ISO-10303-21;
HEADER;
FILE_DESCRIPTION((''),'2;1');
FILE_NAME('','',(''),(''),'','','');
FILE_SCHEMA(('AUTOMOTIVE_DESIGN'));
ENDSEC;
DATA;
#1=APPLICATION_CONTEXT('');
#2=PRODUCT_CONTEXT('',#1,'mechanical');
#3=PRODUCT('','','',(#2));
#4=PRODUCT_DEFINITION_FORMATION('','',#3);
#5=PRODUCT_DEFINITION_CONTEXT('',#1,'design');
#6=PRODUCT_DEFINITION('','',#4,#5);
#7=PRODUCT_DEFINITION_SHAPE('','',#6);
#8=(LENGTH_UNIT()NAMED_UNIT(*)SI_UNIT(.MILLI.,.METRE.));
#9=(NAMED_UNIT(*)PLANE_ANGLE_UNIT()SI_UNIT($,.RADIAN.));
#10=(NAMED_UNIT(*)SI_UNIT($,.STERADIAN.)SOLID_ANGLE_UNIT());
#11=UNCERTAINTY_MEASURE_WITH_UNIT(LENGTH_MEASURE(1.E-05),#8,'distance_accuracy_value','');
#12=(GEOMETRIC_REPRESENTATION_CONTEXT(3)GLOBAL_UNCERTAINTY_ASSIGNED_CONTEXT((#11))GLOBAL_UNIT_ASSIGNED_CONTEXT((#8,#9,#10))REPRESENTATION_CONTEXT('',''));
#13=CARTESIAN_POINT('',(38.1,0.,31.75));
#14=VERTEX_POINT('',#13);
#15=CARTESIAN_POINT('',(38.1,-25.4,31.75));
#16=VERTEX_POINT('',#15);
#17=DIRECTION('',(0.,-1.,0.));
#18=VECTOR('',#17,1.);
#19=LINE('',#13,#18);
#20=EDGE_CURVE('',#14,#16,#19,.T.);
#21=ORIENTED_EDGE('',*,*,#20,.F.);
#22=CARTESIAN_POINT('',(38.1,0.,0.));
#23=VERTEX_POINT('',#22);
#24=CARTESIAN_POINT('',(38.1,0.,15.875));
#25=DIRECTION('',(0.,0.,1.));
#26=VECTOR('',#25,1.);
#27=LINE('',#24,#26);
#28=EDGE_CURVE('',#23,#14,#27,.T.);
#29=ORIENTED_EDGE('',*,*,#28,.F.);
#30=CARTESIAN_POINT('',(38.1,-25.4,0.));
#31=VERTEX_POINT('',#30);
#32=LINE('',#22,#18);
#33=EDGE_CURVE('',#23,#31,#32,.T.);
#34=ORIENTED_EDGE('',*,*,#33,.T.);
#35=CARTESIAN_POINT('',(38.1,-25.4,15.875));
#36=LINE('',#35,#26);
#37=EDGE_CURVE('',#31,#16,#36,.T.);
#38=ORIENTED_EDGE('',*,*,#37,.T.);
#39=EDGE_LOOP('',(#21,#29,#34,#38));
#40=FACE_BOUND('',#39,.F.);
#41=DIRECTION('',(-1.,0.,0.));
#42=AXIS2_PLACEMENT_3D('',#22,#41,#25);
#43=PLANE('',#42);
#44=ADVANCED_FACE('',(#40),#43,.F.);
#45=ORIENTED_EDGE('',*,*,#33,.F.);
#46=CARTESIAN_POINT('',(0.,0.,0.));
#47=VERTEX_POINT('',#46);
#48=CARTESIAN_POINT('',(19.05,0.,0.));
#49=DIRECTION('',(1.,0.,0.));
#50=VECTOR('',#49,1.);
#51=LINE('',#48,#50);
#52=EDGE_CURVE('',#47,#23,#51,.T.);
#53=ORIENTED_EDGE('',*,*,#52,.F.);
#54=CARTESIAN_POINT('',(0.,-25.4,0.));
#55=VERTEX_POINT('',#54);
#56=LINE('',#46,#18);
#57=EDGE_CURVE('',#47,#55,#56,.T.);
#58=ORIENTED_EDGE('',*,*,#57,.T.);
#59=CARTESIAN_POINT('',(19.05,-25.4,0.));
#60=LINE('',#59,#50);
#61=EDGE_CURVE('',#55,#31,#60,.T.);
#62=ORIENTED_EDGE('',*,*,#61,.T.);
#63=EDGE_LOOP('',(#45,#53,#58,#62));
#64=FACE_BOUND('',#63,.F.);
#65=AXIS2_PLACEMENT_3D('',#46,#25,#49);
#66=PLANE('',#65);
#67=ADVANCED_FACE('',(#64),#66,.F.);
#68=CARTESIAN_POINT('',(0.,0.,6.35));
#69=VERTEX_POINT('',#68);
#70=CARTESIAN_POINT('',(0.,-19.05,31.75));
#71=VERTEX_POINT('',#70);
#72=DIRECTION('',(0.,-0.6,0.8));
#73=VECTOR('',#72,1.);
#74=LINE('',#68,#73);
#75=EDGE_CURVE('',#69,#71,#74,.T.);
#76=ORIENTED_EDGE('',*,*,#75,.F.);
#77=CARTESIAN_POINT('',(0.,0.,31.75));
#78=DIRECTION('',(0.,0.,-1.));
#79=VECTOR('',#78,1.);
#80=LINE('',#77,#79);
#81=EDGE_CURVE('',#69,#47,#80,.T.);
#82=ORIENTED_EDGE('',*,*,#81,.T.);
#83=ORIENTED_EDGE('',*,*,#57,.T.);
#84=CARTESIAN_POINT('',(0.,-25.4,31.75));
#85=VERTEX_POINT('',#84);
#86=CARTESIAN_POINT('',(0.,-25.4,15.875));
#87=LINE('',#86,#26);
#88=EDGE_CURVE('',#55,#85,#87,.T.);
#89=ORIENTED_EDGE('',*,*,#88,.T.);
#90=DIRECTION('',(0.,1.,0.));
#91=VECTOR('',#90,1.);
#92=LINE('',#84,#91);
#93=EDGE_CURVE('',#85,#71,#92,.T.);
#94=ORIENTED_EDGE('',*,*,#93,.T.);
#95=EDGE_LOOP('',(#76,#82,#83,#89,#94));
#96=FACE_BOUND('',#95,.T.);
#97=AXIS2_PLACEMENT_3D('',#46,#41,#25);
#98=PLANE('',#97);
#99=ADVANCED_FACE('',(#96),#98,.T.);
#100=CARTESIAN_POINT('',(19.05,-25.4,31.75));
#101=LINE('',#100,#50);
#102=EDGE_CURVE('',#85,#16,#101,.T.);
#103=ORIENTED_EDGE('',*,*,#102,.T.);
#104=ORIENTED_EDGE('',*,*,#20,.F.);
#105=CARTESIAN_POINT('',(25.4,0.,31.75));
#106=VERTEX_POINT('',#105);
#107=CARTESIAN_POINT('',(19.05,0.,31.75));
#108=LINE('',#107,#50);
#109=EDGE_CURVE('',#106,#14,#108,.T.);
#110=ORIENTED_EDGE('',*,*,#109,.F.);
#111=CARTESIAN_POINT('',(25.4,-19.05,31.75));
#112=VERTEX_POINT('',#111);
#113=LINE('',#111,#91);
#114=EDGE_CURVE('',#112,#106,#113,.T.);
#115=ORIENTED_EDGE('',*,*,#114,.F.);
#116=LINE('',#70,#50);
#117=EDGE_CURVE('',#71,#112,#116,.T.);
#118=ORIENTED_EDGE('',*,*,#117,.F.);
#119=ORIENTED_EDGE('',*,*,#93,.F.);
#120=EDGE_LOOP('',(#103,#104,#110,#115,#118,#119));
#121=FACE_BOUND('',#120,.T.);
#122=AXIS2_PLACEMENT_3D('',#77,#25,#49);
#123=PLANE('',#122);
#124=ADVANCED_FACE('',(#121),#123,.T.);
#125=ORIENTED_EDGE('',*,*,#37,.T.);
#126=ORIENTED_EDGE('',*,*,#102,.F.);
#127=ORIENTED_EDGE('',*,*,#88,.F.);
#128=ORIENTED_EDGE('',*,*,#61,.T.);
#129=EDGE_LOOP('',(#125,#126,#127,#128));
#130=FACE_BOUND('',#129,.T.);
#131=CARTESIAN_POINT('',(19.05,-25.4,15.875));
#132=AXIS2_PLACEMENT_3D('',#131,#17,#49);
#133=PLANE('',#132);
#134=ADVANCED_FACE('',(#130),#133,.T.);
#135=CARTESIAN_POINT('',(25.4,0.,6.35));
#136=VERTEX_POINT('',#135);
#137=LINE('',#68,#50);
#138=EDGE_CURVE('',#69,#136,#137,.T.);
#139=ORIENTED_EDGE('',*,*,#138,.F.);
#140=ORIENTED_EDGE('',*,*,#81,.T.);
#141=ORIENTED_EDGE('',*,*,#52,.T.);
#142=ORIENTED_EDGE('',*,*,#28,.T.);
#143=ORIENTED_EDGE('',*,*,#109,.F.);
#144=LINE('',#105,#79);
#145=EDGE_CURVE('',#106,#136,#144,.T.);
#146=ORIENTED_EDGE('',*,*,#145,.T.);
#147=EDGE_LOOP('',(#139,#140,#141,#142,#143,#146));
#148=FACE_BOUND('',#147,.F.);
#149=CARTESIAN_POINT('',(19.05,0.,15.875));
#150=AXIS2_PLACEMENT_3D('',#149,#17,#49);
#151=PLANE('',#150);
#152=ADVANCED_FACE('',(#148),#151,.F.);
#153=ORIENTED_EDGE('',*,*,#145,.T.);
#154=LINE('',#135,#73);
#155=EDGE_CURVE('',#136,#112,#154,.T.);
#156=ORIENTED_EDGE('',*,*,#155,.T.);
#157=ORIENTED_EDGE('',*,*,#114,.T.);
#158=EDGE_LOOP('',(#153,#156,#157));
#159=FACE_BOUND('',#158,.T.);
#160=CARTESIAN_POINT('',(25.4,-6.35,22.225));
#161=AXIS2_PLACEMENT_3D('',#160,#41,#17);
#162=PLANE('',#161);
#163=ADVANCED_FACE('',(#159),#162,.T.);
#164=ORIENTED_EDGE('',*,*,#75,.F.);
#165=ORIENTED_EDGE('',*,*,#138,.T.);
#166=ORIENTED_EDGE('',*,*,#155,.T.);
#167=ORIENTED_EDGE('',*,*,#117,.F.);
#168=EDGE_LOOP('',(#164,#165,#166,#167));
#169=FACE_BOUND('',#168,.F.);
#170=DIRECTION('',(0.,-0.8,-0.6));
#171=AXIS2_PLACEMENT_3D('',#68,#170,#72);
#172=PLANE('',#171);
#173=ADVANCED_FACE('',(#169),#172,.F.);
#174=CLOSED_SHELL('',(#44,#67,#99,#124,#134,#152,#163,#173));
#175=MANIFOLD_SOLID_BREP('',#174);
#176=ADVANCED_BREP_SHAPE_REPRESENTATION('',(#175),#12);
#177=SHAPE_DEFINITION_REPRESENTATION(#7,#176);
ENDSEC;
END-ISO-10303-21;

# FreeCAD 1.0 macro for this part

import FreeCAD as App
import Part
import Sketcher
from FreeCAD import Vector
Q = App.Units.Quantity


def add_polygon(sketch, points):
    """Adds a closed chain of lines whose ends are joined by coincident constraints."""
    first, n = sketch.GeometryCount, len(points)
    for a, b in zip(points, points[1:] + points[:1]):
        sketch.addGeometry(Part.LineSegment(App.Vector(*a, 0), App.Vector(*b, 0)), False)
    for i in range(n):
        sketch.addConstraint(Sketcher.Constraint("Coincident", first + i, 2, first + (i + 1) % n, 1))

doc = App.newDocument("Part")
params = doc.addObject("Spreadsheet::Sheet", "Params")
for row, (alias, value) in enumerate([
    ("sketch1_width", "1.5 in"),
    ("sketch1_height", "1.25 in"),
    ("pad1_length", "1 in"),
    ("sketch2_height", "1 in"),
    ("sketch2_width", "0.75 in"),
    ("pocket1_length", "0.75 in"),
    ("sketch3_height", "1 in"),
    ("sketch3_width", "0.75 in"),
    ("pocket2_length", "1 in"),
], start=1):
    params.set(f"A{row}", alias)
    params.set(f"B{row}", "=" + value)
    params.setAlias(f"B{row}", alias)

body = doc.addObject("PartDesign::Body", "Body")

sketch1 = doc.addObject("Sketcher::SketchObject", "Sketch")
body.addObject(sketch1)
sketch1.AttachmentSupport = (doc.XZ_Plane, [""])
sketch1.MapMode = "FlatFace"
add_polygon(sketch1, [(0, 32), (0, 0), (38, 0), (38, 32)])
sketch1.addConstraint(Sketcher.Constraint("Vertical", 0))
sketch1.addConstraint(Sketcher.Constraint("Horizontal", 1))
sketch1.addConstraint(Sketcher.Constraint("Vertical", 2))
sketch1.addConstraint(Sketcher.Constraint("Horizontal", 3))
sketch1.addConstraint(Sketcher.Constraint("Coincident", 0, 2, -1, 1))
sketch1.addConstraint(Sketcher.Constraint("DistanceX", 1, 1, 1, 2, Q("1.5 in")))
sketch1.addConstraint(Sketcher.Constraint("DistanceY", 0, 2, 0, 1, Q("1.25 in")))
sketch1.setExpression("Constraints[9]", "Params.sketch1_width")
sketch1.setExpression("Constraints[10]", "Params.sketch1_height")
pad1 = doc.addObject("PartDesign::Pad", "Pad")
body.addObject(pad1)
pad1.Profile = sketch1
pad1.setExpression("Length", "Params.pad1_length")

sketch2 = doc.addObject("Sketcher::SketchObject", "Sketch001")
body.addObject(sketch2)
sketch2.AttachmentSupport = (doc.YZ_Plane, [""])
sketch2.MapMode = "FlatFace"
add_polygon(sketch2, [(0, 6), (0, 32), (-19, 32)])
sketch2.addConstraint(Sketcher.Constraint("Vertical", 0))
sketch2.addConstraint(Sketcher.Constraint("Horizontal", 1))
sketch2.addConstraint(Sketcher.Constraint("PointOnObject", 0, 2, -2))
sketch2.addConstraint(Sketcher.Constraint("DistanceY", 0, 1, 0, 2, Q("1 in")))
sketch2.addConstraint(Sketcher.Constraint("DistanceX", 1, 2, 1, 1, Q("0.75 in")))
sketch2.addConstraint(Sketcher.Constraint("DistanceY", -1, 1, 0, 2, Q("1.25 in")))
sketch2.setExpression("Constraints[6]", "Params.sketch2_height")
sketch2.setExpression("Constraints[7]", "Params.sketch2_width")
pocket1 = doc.addObject("PartDesign::Pocket", "Pocket")
body.addObject(pocket1)
pocket1.Profile = sketch2
pocket1.setExpression("Length", "Params.pocket1_length")

sketch3 = doc.addObject("Sketcher::SketchObject", "Sketch002")
body.addObject(sketch3)
sketch3.AttachmentSupport = (doc.YZ_Plane, [""])
sketch3.MapMode = "FlatFace"
add_polygon(sketch3, [(0, 6), (-19, 32), (0, 32)])
sketch3.addConstraint(Sketcher.Constraint("Horizontal", 1))
sketch3.addConstraint(Sketcher.Constraint("Vertical", 2))
sketch3.addConstraint(Sketcher.Constraint("PointOnObject", 1, 2, -2))
sketch3.addConstraint(Sketcher.Constraint("DistanceY", 2, 2, 2, 1, Q("1 in")))
sketch3.addConstraint(Sketcher.Constraint("DistanceX", 1, 1, 1, 2, Q("0.75 in")))
sketch3.addConstraint(Sketcher.Constraint("DistanceY", -1, 1, 0, 2, Q("1.25 in")))
sketch3.setExpression("Constraints[6]", "Params.sketch3_height")
sketch3.setExpression("Constraints[7]", "Params.sketch3_width")
pocket2 = doc.addObject("PartDesign::Pocket", "Pocket001")
body.addObject(pocket2)
pocket2.Profile = sketch3
pocket2.setExpression("Length", "Params.pocket2_length")
pocket2.Reversed = True

doc.recompute()
